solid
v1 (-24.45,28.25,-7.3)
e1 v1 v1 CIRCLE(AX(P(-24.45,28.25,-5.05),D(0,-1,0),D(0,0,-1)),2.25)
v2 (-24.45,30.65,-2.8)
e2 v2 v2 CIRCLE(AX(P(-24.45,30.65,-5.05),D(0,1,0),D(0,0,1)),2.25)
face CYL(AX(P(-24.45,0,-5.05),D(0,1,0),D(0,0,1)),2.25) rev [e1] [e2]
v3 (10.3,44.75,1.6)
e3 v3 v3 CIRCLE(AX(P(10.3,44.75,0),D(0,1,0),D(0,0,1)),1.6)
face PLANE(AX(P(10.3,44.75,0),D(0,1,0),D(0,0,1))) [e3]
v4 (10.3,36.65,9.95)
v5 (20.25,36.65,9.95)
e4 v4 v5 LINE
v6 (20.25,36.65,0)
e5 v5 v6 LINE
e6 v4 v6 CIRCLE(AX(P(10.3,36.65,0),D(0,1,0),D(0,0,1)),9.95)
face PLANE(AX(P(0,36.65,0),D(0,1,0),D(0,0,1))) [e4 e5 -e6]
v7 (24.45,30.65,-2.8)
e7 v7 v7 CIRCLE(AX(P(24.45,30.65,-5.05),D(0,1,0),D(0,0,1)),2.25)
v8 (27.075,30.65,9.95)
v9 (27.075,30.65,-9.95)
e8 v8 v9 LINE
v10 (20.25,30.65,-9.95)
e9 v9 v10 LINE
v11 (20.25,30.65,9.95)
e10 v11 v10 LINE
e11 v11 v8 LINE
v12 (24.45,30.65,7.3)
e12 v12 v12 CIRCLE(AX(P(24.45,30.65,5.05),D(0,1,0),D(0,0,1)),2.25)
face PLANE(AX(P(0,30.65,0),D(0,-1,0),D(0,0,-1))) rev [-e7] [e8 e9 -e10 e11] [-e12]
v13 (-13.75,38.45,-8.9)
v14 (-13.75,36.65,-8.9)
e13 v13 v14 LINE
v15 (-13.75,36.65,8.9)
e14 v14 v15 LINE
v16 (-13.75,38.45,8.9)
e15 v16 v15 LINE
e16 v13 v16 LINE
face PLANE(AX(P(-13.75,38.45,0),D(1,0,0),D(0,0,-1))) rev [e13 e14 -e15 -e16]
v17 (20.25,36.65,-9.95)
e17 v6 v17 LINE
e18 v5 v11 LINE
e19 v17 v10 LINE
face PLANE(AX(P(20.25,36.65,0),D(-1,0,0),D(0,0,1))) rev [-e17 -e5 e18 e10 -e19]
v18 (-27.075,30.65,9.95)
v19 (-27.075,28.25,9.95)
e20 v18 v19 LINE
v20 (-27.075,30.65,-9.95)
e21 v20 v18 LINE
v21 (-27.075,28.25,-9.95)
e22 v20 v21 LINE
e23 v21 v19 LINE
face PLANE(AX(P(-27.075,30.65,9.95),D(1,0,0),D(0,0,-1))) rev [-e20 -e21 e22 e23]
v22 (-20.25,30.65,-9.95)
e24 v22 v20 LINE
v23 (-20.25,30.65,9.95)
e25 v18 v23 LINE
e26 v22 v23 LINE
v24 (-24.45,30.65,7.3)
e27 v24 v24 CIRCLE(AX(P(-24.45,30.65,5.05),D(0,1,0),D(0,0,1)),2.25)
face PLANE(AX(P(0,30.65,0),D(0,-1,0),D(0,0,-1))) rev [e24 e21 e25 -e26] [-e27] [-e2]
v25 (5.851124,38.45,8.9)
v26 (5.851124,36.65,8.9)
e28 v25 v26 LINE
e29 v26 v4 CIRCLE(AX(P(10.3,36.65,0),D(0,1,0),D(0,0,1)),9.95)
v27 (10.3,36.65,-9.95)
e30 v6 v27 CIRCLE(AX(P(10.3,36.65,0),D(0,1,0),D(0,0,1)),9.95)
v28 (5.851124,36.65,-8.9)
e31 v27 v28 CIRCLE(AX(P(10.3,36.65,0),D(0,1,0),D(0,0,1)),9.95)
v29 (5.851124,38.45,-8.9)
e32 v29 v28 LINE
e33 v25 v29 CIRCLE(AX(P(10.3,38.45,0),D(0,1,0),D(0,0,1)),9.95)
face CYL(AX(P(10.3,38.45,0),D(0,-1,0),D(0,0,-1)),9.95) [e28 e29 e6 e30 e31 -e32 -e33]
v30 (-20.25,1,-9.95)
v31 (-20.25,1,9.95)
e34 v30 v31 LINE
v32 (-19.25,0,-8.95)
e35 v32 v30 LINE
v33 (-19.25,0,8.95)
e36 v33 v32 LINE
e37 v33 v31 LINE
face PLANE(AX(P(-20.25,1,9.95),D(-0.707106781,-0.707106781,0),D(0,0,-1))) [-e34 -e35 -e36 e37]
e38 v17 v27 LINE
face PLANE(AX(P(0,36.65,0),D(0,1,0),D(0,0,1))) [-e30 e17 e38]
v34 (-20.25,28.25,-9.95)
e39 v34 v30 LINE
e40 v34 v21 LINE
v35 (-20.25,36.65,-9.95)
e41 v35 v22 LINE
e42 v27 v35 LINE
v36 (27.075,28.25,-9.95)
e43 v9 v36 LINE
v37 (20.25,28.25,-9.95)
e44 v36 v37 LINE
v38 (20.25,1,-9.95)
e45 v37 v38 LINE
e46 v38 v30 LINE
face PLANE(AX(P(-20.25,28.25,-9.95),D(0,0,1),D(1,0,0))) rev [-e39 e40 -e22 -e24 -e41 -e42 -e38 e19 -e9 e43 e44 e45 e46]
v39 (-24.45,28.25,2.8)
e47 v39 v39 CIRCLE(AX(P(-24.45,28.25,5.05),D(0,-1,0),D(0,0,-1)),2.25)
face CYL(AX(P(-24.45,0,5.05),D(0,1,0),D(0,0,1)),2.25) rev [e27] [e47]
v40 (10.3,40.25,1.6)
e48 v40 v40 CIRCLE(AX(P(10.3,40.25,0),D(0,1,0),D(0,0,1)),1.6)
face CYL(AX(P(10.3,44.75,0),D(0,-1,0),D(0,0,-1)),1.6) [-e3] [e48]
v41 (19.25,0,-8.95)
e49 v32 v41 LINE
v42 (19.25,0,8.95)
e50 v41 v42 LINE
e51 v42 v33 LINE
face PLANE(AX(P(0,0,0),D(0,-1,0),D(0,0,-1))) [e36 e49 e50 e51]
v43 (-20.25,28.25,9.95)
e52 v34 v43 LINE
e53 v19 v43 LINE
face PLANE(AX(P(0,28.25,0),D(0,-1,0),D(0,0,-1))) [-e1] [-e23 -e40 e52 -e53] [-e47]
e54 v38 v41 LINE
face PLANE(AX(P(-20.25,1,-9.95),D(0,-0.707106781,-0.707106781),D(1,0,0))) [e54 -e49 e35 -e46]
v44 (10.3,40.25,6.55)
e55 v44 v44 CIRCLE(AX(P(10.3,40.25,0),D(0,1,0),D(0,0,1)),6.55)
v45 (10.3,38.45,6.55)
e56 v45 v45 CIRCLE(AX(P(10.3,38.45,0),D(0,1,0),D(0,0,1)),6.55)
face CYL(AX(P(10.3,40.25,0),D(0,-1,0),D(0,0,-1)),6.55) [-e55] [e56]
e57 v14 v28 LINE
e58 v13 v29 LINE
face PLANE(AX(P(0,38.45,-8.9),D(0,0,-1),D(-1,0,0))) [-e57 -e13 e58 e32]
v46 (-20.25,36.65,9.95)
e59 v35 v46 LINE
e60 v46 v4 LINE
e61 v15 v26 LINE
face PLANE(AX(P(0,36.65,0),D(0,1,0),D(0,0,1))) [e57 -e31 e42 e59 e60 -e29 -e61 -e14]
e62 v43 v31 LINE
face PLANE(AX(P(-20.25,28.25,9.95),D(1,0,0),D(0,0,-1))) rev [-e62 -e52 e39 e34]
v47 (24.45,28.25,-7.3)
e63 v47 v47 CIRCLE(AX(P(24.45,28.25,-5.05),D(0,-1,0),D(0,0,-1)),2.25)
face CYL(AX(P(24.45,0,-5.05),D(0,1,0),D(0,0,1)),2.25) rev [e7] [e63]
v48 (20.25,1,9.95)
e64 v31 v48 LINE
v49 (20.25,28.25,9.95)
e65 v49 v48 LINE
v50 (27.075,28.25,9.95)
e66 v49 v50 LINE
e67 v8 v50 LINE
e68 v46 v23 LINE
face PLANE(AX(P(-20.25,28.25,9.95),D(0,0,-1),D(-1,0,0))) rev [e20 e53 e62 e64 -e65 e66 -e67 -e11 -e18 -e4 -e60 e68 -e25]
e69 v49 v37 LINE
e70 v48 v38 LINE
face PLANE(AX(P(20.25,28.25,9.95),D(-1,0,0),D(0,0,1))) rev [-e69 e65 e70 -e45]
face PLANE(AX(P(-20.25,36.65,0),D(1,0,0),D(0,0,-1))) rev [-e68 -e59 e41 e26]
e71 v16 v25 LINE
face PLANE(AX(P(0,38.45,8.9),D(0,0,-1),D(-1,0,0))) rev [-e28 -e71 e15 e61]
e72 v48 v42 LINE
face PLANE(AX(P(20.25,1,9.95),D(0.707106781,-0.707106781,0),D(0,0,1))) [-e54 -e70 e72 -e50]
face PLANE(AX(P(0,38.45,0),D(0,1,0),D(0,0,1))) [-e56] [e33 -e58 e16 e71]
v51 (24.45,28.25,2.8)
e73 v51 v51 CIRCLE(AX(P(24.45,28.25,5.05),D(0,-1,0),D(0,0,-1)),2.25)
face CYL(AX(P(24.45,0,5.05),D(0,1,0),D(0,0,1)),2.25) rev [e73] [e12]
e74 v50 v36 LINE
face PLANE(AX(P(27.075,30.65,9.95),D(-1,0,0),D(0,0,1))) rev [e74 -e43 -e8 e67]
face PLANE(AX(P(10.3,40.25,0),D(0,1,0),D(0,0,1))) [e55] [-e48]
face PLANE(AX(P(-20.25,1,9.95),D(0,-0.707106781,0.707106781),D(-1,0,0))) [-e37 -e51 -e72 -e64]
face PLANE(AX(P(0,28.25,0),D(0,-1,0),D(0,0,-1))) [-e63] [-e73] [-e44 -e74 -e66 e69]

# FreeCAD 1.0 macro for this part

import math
import FreeCAD as App
import Part
import Sketcher


def edges_at(feature, points):
    """Names of the edges that pass closest to the given points."""
    edges = feature.Shape.Edges
    near = lambda p: min(range(len(edges)), key=lambda i: edges[i].distToShape(Part.Vertex(*p))[0])
    return sorted({f"Edge{near(p) + 1}" for p in points})

doc = App.newDocument("Part")
body = doc.addObject("PartDesign::Body", "Body")

# Sketch on XZ plane
sketch1 = body.newObject("Sketcher::SketchObject", "Sketch")
sketch1.AttachmentSupport = (doc.getObject("XZ_Plane"), [""])
sketch1.MapMode = "FlatFace"
sketch1.addGeometry(Part.LineSegment(App.Vector(-20, -10, 0), App.Vector(-20, 10, 0)), False)
sketch1.addGeometry(Part.LineSegment(App.Vector(-20, 10, 0), App.Vector(20, 10, 0)), False)
sketch1.addGeometry(Part.LineSegment(App.Vector(20, 10, 0), App.Vector(20, -10, 0)), False)
sketch1.addGeometry(Part.LineSegment(App.Vector(20, -10, 0), App.Vector(-20, -10, 0)), False)
sketch1.addConstraint(Sketcher.Constraint("Coincident", 0, 2, 1, 1))
sketch1.addConstraint(Sketcher.Constraint("Coincident", 1, 2, 2, 1))
sketch1.addConstraint(Sketcher.Constraint("Coincident", 2, 2, 3, 1))
sketch1.addConstraint(Sketcher.Constraint("Coincident", 3, 2, 0, 1))
sketch1.addConstraint(Sketcher.Constraint("Vertical", 0))
sketch1.addConstraint(Sketcher.Constraint("Horizontal", 1))
sketch1.addConstraint(Sketcher.Constraint("Vertical", 2))
sketch1.addConstraint(Sketcher.Constraint("Horizontal", 3))
sketch1.addConstraint(Sketcher.Constraint("Symmetric", 0, 2, 2, 2, -1, 1))
sketch1.addConstraint(Sketcher.Constraint("DistanceX", 1, 1, 1, 2, 40.5))
sketch1.addConstraint(Sketcher.Constraint("DistanceY", 0, 1, 0, 2, 19.9))
pad1 = body.newObject("PartDesign::Pad", "Pad")
pad1.Profile = sketch1
pad1.Length = 28.25
pad1.Reversed = True

# Sketch on XZ plane
sketch2 = body.newObject("Sketcher::SketchObject", "Sketch001")
sketch2.AttachmentSupport = (doc.getObject("XZ_Plane"), [""])
sketch2.MapMode = "FlatFace"
sketch2.AttachmentOffset = App.Placement(App.Vector(0, 0, -28.25), App.Rotation())
sketch2.addGeometry(Part.LineSegment(App.Vector(-27, -10, 0), App.Vector(-27, 10, 0)), False)
sketch2.addGeometry(Part.LineSegment(App.Vector(-27, 10, 0), App.Vector(27, 10, 0)), False)
sketch2.addGeometry(Part.LineSegment(App.Vector(27, 10, 0), App.Vector(27, -10, 0)), False)
sketch2.addGeometry(Part.LineSegment(App.Vector(27, -10, 0), App.Vector(-27, -10, 0)), False)
sketch2.addConstraint(Sketcher.Constraint("Coincident", 0, 2, 1, 1))
sketch2.addConstraint(Sketcher.Constraint("Coincident", 1, 2, 2, 1))
sketch2.addConstraint(Sketcher.Constraint("Coincident", 2, 2, 3, 1))
sketch2.addConstraint(Sketcher.Constraint("Coincident", 3, 2, 0, 1))
sketch2.addConstraint(Sketcher.Constraint("Vertical", 0))
sketch2.addConstraint(Sketcher.Constraint("Horizontal", 1))
sketch2.addConstraint(Sketcher.Constraint("Vertical", 2))
sketch2.addConstraint(Sketcher.Constraint("Horizontal", 3))
sketch2.addConstraint(Sketcher.Constraint("Symmetric", 0, 2, 2, 2, -1, 1))
sketch2.addConstraint(Sketcher.Constraint("DistanceY", 0, 1, 0, 2, 19.9))
sketch2.addConstraint(Sketcher.Constraint("DistanceX", 1, 1, 1, 2, 54.15))
pad2 = body.newObject("PartDesign::Pad", "Pad001")
pad2.Profile = sketch2
pad2.Length = 2.4
pad2.Reversed = True

# Sketch on XZ plane
sketch3 = body.newObject("Sketcher::SketchObject", "Sketch002")
sketch3.AttachmentSupport = (doc.getObject("XZ_Plane"), [""])
sketch3.MapMode = "FlatFace"
sketch3.AttachmentOffset = App.Placement(App.Vector(0, 0, -30.65), App.Rotation())
sketch3.addGeometry(Part.LineSegment(App.Vector(-20, -10, 0), App.Vector(-20, 10, 0)), False)
sketch3.addGeometry(Part.LineSegment(App.Vector(-20, 10, 0), App.Vector(20, 10, 0)), False)
sketch3.addGeometry(Part.LineSegment(App.Vector(20, 10, 0), App.Vector(20, -10, 0)), False)
sketch3.addGeometry(Part.LineSegment(App.Vector(20, -10, 0), App.Vector(-20, -10, 0)), False)
sketch3.addConstraint(Sketcher.Constraint("Coincident", 0, 2, 1, 1))
sketch3.addConstraint(Sketcher.Constraint("Coincident", 1, 2, 2, 1))
sketch3.addConstraint(Sketcher.Constraint("Coincident", 2, 2, 3, 1))
sketch3.addConstraint(Sketcher.Constraint("Coincident", 3, 2, 0, 1))
sketch3.addConstraint(Sketcher.Constraint("Vertical", 0))
sketch3.addConstraint(Sketcher.Constraint("Horizontal", 1))
sketch3.addConstraint(Sketcher.Constraint("Vertical", 2))
sketch3.addConstraint(Sketcher.Constraint("Horizontal", 3))
sketch3.addConstraint(Sketcher.Constraint("Symmetric", 0, 2, 2, 2, -1, 1))
sketch3.addConstraint(Sketcher.Constraint("DistanceX", 1, 1, 1, 2, 40.5))
sketch3.addConstraint(Sketcher.Constraint("DistanceY", 0, 1, 0, 2, 19.9))
pad3 = body.newObject("PartDesign::Pad", "Pad002")
pad3.Profile = sketch3
pad3.Length = 6
pad3.Reversed = True

# Sketch on XZ plane
sketch4 = body.newObject("Sketcher::SketchObject", "Sketch003")
sketch4.AttachmentSupport = (doc.getObject("XZ_Plane"), [""])
sketch4.MapMode = "FlatFace"
sketch4.AttachmentOffset = App.Placement(App.Vector(0, 0, -36.65), App.Rotation())
sketch4.addGeometry(Part.ArcOfCircle(Part.Circle(App.Vector(10, 0, 0), App.Vector(0, 0, 1), 10), math.radians(-117), math.radians(117)), False)
sketch4.addGeometry(Part.LineSegment(App.Vector(6, -9, 0), App.Vector(-14, -9, 0)), False)
sketch4.addGeometry(Part.LineSegment(App.Vector(-14, -9, 0), App.Vector(-14, 9, 0)), False)
sketch4.addGeometry(Part.LineSegment(App.Vector(-14, 9, 0), App.Vector(6, 9, 0)), False)
sketch4.addConstraint(Sketcher.Constraint("Coincident", 0, 1, 1, 1))
sketch4.addConstraint(Sketcher.Constraint("Coincident", 1, 2, 2, 1))
sketch4.addConstraint(Sketcher.Constraint("Coincident", 2, 2, 3, 1))
sketch4.addConstraint(Sketcher.Constraint("Coincident", 3, 2, 0, 2))
sketch4.addConstraint(Sketcher.Constraint("Horizontal", 1))
sketch4.addConstraint(Sketcher.Constraint("Vertical", 2))
sketch4.addConstraint(Sketcher.Constraint("Horizontal", 3))
sketch4.addConstraint(Sketcher.Constraint("Symmetric", 0, 1, 3, 2, -1))
sketch4.addConstraint(Sketcher.Constraint("Radius", 0, 9.95))
sketch4.addConstraint(Sketcher.Constraint("DistanceY", 2, 1, 2, 2, 17.8))
sketch4.addConstraint(Sketcher.Constraint("DistanceX", -1, 1, 0, 3, 10.3))
sketch4.addConstraint(Sketcher.Constraint("DistanceX", 1, 2, -1, 1, 13.75))
pad4 = body.newObject("PartDesign::Pad", "Pad003")
pad4.Profile = sketch4
pad4.Length = 1.8
pad4.Reversed = True

# Sketch on XZ plane
sketch5 = body.newObject("Sketcher::SketchObject", "Sketch004")
sketch5.AttachmentSupport = (doc.getObject("XZ_Plane"), [""])
sketch5.MapMode = "FlatFace"
sketch5.AttachmentOffset = App.Placement(App.Vector(0, 0, -38.45), App.Rotation())
sketch5.addGeometry(Part.Circle(App.Vector(10, 0, 0), App.Vector(0, 0, 1), 7), False)
sketch5.addConstraint(Sketcher.Constraint("PointOnObject", 0, 3, -1))
sketch5.addConstraint(Sketcher.Constraint("Diameter", 0, 13.1))
sketch5.addConstraint(Sketcher.Constraint("DistanceX", -1, 1, 0, 3, 10.3))
pad5 = body.newObject("PartDesign::Pad", "Pad004")
pad5.Profile = sketch5
pad5.Length = 1.8
pad5.Reversed = True

# Sketch on XZ plane
sketch6 = body.newObject("Sketcher::SketchObject", "Sketch005")
sketch6.AttachmentSupport = (doc.getObject("XZ_Plane"), [""])
sketch6.MapMode = "FlatFace"
sketch6.AttachmentOffset = App.Placement(App.Vector(0, 0, -40.25), App.Rotation())
sketch6.addGeometry(Part.Circle(App.Vector(10.3, 0, 0), App.Vector(0, 0, 1), 1.6), False)
sketch6.addConstraint(Sketcher.Constraint("PointOnObject", 0, 3, -1))
sketch6.addConstraint(Sketcher.Constraint("Diameter", 0, 3.2))
sketch6.addConstraint(Sketcher.Constraint("DistanceX", -1, 1, 0, 3, 10.3))
pad6 = body.newObject("PartDesign::Pad", "Pad005")
pad6.Profile = sketch6
pad6.Length = 4.5
pad6.Reversed = True

# Sketch on XZ plane
sketch7 = body.newObject("Sketcher::SketchObject", "Sketch006")
sketch7.AttachmentSupport = (doc.getObject("XZ_Plane"), [""])
sketch7.MapMode = "FlatFace"
sketch7.AttachmentOffset = App.Placement(App.Vector(0, 0, -30.65), App.Rotation())
sketch7.addGeometry(Part.Circle(App.Vector(24.4, 5, 0), App.Vector(0, 0, 1), 2.2), False)
sketch7.addGeometry(Part.Circle(App.Vector(24.4, -5, 0), App.Vector(0, 0, 1), 2.2), False)
sketch7.addGeometry(Part.Circle(App.Vector(-24.4, -5, 0), App.Vector(0, 0, 1), 2.2), False)
sketch7.addGeometry(Part.Circle(App.Vector(-24.4, 5, 0), App.Vector(0, 0, 1), 2.2), False)
sketch7.addConstraint(Sketcher.Constraint("Equal", 0, 1))
sketch7.addConstraint(Sketcher.Constraint("Equal", 1, 2))
sketch7.addConstraint(Sketcher.Constraint("Equal", 2, 3))
sketch7.addConstraint(Sketcher.Constraint("Symmetric", 0, 3, 2, 3, -1, 1))
sketch7.addConstraint(Sketcher.Constraint("Symmetric", 1, 3, 3, 3, -1, 1))
sketch7.addConstraint(Sketcher.Constraint("Symmetric", 1, 3, 2, 3, -2))
sketch7.addConstraint(Sketcher.Constraint("Diameter", 0, 4.5))
sketch7.addConstraint(Sketcher.Constraint("DistanceY", 1, 3, 0, 3, 10.1))
sketch7.addConstraint(Sketcher.Constraint("DistanceX", 2, 3, 1, 3, 48.9))
pocket1 = body.newObject("PartDesign::Pocket", "Pocket")
pocket1.Profile = sketch7
pocket1.Type = "ThroughAll"
pocket1.Reversed = True
doc.recompute()

chamfer = body.newObject("PartDesign::Chamfer", "Chamfer")
chamfer.Base = (pocket1, edges_at(pocket1, [
    (0, 0, 9.95),
    (-20.25, 0, 0),
    (0, 0, -9.95),
    (20.25, 0, 0),
]))
chamfer.Size = 1

doc.recompute()
